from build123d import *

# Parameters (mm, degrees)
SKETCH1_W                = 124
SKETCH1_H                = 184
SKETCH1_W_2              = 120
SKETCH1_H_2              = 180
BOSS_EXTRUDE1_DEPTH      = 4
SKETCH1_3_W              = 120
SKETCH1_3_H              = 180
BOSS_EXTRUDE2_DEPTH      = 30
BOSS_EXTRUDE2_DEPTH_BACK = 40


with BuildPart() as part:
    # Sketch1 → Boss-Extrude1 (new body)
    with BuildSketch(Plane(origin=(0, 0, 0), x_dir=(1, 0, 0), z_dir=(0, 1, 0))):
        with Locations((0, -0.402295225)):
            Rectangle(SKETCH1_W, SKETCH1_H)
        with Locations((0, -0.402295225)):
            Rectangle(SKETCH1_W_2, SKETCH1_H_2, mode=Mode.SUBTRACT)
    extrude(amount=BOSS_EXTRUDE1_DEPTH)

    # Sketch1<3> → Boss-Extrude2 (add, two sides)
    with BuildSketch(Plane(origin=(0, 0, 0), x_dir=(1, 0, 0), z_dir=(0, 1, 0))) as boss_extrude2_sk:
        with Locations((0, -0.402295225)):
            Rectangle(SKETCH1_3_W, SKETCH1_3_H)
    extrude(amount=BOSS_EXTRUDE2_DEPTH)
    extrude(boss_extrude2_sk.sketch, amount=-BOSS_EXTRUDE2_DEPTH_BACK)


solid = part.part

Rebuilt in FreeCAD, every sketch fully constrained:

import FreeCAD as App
import Part
import Sketcher

doc = App.newDocument("Part")
params = doc.addObject("Spreadsheet::Sheet", "Params")
for row, (alias, value) in enumerate([
    ("sketch1_width", "124 mm"),
    ("sketch1_width2", "120 mm"),
    ("sketch1_height", "184 mm"),
    ("sketch1_height2", "180 mm"),
    ("pad1_length", "4 mm"),
    ("sketch2_width", "120 mm"),
    ("sketch2_height", "180 mm"),
    ("pad2_length", "30 mm"),
    ("pad2_length2", "40 mm"),
], start=1):
    params.set(f"A{row}", alias)
    params.set(f"B{row}", "=" + value)
    params.setAlias(f"B{row}", alias)

body = doc.addObject("PartDesign::Body", "Body")

sketch1 = body.newObject("Sketcher::SketchObject", "Sketch")
sketch1.AttachmentSupport = (doc.getObject("XZ_Plane"), [""])
sketch1.MapMode = "FlatFace"
sketch1.addGeometry(Part.LineSegment(App.Vector(-62, -91.597705, 0), App.Vector(-62, 92.402295, 0)), False)
sketch1.addGeometry(Part.LineSegment(App.Vector(-62, 92.402295, 0), App.Vector(62, 92.402295, 0)), False)
sketch1.addGeometry(Part.LineSegment(App.Vector(62, 92.402295, 0), App.Vector(62, -91.597705, 0)), False)
sketch1.addGeometry(Part.LineSegment(App.Vector(62, -91.597705, 0), App.Vector(-62, -91.597705, 0)), False)
sketch1.addGeometry(Part.LineSegment(App.Vector(60, 90.402295, 0), App.Vector(-60, 90.402295, 0)), False)
sketch1.addGeometry(Part.LineSegment(App.Vector(-60, 90.402295, 0), App.Vector(-60, -89.597705, 0)), False)
sketch1.addGeometry(Part.LineSegment(App.Vector(-60, -89.597705, 0), App.Vector(60, -89.597705, 0)), False)
sketch1.addGeometry(Part.LineSegment(App.Vector(60, -89.597705, 0), App.Vector(60, 90.402295, 0)), False)
sketch1.addConstraint(Sketcher.Constraint("Coincident", 0, 2, 1, 1))
sketch1.addConstraint(Sketcher.Constraint("Coincident", 1, 2, 2, 1))
sketch1.addConstraint(Sketcher.Constraint("Coincident", 2, 2, 3, 1))
sketch1.addConstraint(Sketcher.Constraint("Coincident", 3, 2, 0, 1))
sketch1.addConstraint(Sketcher.Constraint("Coincident", 4, 2, 5, 1))
sketch1.addConstraint(Sketcher.Constraint("Coincident", 5, 2, 6, 1))
sketch1.addConstraint(Sketcher.Constraint("Coincident", 6, 2, 7, 1))
sketch1.addConstraint(Sketcher.Constraint("Coincident", 7, 2, 4, 1))
sketch1.addConstraint(Sketcher.Constraint("Vertical", 0))
sketch1.addConstraint(Sketcher.Constraint("Horizontal", 1))
sketch1.addConstraint(Sketcher.Constraint("Vertical", 2))
sketch1.addConstraint(Sketcher.Constraint("Horizontal", 3))
sketch1.addConstraint(Sketcher.Constraint("Horizontal", 4))
sketch1.addConstraint(Sketcher.Constraint("Vertical", 5))
sketch1.addConstraint(Sketcher.Constraint("Horizontal", 6))
sketch1.addConstraint(Sketcher.Constraint("Vertical", 7))
sketch1.addConstraint(Sketcher.Constraint("DistanceX", 1, 1, 1, 2, 124.0))
sketch1.addConstraint(Sketcher.Constraint("DistanceX", 4, 2, 4, 1, 120.0))
sketch1.addConstraint(Sketcher.Constraint("DistanceY", 0, 1, 0, 2, 184.0))
sketch1.addConstraint(Sketcher.Constraint("DistanceY", 5, 2, 5, 1, 180.0))
sketch1.addConstraint(Sketcher.Constraint("DistanceX", 0, 2, -1, 1, 62.0))
sketch1.addConstraint(Sketcher.Constraint("DistanceX", 4, 2, -1, 1, 60.0))
sketch1.addConstraint(Sketcher.Constraint("DistanceY", 4, 2, 0, 2, 2.0))
sketch1.addConstraint(Sketcher.Constraint("DistanceY", -1, 1, 0, 2, 92.402295))
sketch1.setExpression("Constraints[16]", "Params.sketch1_width")
sketch1.setExpression("Constraints[17]", "Params.sketch1_width2")
sketch1.setExpression("Constraints[18]", "Params.sketch1_height")
sketch1.setExpression("Constraints[19]", "Params.sketch1_height2")
pad1 = body.newObject("PartDesign::Pad", "Pad")
pad1.Profile = sketch1
pad1.setExpression("Length", "Params.pad1_length")
pad1.Reversed = True

sketch2 = body.newObject("Sketcher::SketchObject", "Sketch001")
sketch2.AttachmentSupport = (doc.getObject("XZ_Plane"), [""])
sketch2.MapMode = "FlatFace"
sketch2.addGeometry(Part.LineSegment(App.Vector(-60, -89.597705, 0), App.Vector(-60, 90.402295, 0)), False)
sketch2.addGeometry(Part.LineSegment(App.Vector(-60, 90.402295, 0), App.Vector(60, 90.402295, 0)), False)
sketch2.addGeometry(Part.LineSegment(App.Vector(60, 90.402295, 0), App.Vector(60, -89.597705, 0)), False)
sketch2.addGeometry(Part.LineSegment(App.Vector(60, -89.597705, 0), App.Vector(-60, -89.597705, 0)), False)
sketch2.addConstraint(Sketcher.Constraint("Coincident", 0, 2, 1, 1))
sketch2.addConstraint(Sketcher.Constraint("Coincident", 1, 2, 2, 1))
sketch2.addConstraint(Sketcher.Constraint("Coincident", 2, 2, 3, 1))
sketch2.addConstraint(Sketcher.Constraint("Coincident", 3, 2, 0, 1))
sketch2.addConstraint(Sketcher.Constraint("Vertical", 0))
sketch2.addConstraint(Sketcher.Constraint("Horizontal", 1))
sketch2.addConstraint(Sketcher.Constraint("Vertical", 2))
sketch2.addConstraint(Sketcher.Constraint("Horizontal", 3))
sketch2.addConstraint(Sketcher.Constraint("DistanceX", 1, 1, 1, 2, 120.0))
sketch2.addConstraint(Sketcher.Constraint("DistanceY", 0, 1, 0, 2, 180.0))
sketch2.addConstraint(Sketcher.Constraint("DistanceX", 0, 2, -1, 1, 60.0))
sketch2.addConstraint(Sketcher.Constraint("DistanceY", -1, 1, 0, 2, 90.402295))
sketch2.setExpression("Constraints[8]", "Params.sketch2_width")
sketch2.setExpression("Constraints[9]", "Params.sketch2_height")
pad2 = body.newObject("PartDesign::Pad", "Pad001")
pad2.Profile = sketch2
pad2.Type = "TwoLengths"
pad2.setExpression("Length", "Params.pad2_length")
pad2.setExpression("Length2", "Params.pad2_length2")
pad2.Reversed = True

doc.recompute()
